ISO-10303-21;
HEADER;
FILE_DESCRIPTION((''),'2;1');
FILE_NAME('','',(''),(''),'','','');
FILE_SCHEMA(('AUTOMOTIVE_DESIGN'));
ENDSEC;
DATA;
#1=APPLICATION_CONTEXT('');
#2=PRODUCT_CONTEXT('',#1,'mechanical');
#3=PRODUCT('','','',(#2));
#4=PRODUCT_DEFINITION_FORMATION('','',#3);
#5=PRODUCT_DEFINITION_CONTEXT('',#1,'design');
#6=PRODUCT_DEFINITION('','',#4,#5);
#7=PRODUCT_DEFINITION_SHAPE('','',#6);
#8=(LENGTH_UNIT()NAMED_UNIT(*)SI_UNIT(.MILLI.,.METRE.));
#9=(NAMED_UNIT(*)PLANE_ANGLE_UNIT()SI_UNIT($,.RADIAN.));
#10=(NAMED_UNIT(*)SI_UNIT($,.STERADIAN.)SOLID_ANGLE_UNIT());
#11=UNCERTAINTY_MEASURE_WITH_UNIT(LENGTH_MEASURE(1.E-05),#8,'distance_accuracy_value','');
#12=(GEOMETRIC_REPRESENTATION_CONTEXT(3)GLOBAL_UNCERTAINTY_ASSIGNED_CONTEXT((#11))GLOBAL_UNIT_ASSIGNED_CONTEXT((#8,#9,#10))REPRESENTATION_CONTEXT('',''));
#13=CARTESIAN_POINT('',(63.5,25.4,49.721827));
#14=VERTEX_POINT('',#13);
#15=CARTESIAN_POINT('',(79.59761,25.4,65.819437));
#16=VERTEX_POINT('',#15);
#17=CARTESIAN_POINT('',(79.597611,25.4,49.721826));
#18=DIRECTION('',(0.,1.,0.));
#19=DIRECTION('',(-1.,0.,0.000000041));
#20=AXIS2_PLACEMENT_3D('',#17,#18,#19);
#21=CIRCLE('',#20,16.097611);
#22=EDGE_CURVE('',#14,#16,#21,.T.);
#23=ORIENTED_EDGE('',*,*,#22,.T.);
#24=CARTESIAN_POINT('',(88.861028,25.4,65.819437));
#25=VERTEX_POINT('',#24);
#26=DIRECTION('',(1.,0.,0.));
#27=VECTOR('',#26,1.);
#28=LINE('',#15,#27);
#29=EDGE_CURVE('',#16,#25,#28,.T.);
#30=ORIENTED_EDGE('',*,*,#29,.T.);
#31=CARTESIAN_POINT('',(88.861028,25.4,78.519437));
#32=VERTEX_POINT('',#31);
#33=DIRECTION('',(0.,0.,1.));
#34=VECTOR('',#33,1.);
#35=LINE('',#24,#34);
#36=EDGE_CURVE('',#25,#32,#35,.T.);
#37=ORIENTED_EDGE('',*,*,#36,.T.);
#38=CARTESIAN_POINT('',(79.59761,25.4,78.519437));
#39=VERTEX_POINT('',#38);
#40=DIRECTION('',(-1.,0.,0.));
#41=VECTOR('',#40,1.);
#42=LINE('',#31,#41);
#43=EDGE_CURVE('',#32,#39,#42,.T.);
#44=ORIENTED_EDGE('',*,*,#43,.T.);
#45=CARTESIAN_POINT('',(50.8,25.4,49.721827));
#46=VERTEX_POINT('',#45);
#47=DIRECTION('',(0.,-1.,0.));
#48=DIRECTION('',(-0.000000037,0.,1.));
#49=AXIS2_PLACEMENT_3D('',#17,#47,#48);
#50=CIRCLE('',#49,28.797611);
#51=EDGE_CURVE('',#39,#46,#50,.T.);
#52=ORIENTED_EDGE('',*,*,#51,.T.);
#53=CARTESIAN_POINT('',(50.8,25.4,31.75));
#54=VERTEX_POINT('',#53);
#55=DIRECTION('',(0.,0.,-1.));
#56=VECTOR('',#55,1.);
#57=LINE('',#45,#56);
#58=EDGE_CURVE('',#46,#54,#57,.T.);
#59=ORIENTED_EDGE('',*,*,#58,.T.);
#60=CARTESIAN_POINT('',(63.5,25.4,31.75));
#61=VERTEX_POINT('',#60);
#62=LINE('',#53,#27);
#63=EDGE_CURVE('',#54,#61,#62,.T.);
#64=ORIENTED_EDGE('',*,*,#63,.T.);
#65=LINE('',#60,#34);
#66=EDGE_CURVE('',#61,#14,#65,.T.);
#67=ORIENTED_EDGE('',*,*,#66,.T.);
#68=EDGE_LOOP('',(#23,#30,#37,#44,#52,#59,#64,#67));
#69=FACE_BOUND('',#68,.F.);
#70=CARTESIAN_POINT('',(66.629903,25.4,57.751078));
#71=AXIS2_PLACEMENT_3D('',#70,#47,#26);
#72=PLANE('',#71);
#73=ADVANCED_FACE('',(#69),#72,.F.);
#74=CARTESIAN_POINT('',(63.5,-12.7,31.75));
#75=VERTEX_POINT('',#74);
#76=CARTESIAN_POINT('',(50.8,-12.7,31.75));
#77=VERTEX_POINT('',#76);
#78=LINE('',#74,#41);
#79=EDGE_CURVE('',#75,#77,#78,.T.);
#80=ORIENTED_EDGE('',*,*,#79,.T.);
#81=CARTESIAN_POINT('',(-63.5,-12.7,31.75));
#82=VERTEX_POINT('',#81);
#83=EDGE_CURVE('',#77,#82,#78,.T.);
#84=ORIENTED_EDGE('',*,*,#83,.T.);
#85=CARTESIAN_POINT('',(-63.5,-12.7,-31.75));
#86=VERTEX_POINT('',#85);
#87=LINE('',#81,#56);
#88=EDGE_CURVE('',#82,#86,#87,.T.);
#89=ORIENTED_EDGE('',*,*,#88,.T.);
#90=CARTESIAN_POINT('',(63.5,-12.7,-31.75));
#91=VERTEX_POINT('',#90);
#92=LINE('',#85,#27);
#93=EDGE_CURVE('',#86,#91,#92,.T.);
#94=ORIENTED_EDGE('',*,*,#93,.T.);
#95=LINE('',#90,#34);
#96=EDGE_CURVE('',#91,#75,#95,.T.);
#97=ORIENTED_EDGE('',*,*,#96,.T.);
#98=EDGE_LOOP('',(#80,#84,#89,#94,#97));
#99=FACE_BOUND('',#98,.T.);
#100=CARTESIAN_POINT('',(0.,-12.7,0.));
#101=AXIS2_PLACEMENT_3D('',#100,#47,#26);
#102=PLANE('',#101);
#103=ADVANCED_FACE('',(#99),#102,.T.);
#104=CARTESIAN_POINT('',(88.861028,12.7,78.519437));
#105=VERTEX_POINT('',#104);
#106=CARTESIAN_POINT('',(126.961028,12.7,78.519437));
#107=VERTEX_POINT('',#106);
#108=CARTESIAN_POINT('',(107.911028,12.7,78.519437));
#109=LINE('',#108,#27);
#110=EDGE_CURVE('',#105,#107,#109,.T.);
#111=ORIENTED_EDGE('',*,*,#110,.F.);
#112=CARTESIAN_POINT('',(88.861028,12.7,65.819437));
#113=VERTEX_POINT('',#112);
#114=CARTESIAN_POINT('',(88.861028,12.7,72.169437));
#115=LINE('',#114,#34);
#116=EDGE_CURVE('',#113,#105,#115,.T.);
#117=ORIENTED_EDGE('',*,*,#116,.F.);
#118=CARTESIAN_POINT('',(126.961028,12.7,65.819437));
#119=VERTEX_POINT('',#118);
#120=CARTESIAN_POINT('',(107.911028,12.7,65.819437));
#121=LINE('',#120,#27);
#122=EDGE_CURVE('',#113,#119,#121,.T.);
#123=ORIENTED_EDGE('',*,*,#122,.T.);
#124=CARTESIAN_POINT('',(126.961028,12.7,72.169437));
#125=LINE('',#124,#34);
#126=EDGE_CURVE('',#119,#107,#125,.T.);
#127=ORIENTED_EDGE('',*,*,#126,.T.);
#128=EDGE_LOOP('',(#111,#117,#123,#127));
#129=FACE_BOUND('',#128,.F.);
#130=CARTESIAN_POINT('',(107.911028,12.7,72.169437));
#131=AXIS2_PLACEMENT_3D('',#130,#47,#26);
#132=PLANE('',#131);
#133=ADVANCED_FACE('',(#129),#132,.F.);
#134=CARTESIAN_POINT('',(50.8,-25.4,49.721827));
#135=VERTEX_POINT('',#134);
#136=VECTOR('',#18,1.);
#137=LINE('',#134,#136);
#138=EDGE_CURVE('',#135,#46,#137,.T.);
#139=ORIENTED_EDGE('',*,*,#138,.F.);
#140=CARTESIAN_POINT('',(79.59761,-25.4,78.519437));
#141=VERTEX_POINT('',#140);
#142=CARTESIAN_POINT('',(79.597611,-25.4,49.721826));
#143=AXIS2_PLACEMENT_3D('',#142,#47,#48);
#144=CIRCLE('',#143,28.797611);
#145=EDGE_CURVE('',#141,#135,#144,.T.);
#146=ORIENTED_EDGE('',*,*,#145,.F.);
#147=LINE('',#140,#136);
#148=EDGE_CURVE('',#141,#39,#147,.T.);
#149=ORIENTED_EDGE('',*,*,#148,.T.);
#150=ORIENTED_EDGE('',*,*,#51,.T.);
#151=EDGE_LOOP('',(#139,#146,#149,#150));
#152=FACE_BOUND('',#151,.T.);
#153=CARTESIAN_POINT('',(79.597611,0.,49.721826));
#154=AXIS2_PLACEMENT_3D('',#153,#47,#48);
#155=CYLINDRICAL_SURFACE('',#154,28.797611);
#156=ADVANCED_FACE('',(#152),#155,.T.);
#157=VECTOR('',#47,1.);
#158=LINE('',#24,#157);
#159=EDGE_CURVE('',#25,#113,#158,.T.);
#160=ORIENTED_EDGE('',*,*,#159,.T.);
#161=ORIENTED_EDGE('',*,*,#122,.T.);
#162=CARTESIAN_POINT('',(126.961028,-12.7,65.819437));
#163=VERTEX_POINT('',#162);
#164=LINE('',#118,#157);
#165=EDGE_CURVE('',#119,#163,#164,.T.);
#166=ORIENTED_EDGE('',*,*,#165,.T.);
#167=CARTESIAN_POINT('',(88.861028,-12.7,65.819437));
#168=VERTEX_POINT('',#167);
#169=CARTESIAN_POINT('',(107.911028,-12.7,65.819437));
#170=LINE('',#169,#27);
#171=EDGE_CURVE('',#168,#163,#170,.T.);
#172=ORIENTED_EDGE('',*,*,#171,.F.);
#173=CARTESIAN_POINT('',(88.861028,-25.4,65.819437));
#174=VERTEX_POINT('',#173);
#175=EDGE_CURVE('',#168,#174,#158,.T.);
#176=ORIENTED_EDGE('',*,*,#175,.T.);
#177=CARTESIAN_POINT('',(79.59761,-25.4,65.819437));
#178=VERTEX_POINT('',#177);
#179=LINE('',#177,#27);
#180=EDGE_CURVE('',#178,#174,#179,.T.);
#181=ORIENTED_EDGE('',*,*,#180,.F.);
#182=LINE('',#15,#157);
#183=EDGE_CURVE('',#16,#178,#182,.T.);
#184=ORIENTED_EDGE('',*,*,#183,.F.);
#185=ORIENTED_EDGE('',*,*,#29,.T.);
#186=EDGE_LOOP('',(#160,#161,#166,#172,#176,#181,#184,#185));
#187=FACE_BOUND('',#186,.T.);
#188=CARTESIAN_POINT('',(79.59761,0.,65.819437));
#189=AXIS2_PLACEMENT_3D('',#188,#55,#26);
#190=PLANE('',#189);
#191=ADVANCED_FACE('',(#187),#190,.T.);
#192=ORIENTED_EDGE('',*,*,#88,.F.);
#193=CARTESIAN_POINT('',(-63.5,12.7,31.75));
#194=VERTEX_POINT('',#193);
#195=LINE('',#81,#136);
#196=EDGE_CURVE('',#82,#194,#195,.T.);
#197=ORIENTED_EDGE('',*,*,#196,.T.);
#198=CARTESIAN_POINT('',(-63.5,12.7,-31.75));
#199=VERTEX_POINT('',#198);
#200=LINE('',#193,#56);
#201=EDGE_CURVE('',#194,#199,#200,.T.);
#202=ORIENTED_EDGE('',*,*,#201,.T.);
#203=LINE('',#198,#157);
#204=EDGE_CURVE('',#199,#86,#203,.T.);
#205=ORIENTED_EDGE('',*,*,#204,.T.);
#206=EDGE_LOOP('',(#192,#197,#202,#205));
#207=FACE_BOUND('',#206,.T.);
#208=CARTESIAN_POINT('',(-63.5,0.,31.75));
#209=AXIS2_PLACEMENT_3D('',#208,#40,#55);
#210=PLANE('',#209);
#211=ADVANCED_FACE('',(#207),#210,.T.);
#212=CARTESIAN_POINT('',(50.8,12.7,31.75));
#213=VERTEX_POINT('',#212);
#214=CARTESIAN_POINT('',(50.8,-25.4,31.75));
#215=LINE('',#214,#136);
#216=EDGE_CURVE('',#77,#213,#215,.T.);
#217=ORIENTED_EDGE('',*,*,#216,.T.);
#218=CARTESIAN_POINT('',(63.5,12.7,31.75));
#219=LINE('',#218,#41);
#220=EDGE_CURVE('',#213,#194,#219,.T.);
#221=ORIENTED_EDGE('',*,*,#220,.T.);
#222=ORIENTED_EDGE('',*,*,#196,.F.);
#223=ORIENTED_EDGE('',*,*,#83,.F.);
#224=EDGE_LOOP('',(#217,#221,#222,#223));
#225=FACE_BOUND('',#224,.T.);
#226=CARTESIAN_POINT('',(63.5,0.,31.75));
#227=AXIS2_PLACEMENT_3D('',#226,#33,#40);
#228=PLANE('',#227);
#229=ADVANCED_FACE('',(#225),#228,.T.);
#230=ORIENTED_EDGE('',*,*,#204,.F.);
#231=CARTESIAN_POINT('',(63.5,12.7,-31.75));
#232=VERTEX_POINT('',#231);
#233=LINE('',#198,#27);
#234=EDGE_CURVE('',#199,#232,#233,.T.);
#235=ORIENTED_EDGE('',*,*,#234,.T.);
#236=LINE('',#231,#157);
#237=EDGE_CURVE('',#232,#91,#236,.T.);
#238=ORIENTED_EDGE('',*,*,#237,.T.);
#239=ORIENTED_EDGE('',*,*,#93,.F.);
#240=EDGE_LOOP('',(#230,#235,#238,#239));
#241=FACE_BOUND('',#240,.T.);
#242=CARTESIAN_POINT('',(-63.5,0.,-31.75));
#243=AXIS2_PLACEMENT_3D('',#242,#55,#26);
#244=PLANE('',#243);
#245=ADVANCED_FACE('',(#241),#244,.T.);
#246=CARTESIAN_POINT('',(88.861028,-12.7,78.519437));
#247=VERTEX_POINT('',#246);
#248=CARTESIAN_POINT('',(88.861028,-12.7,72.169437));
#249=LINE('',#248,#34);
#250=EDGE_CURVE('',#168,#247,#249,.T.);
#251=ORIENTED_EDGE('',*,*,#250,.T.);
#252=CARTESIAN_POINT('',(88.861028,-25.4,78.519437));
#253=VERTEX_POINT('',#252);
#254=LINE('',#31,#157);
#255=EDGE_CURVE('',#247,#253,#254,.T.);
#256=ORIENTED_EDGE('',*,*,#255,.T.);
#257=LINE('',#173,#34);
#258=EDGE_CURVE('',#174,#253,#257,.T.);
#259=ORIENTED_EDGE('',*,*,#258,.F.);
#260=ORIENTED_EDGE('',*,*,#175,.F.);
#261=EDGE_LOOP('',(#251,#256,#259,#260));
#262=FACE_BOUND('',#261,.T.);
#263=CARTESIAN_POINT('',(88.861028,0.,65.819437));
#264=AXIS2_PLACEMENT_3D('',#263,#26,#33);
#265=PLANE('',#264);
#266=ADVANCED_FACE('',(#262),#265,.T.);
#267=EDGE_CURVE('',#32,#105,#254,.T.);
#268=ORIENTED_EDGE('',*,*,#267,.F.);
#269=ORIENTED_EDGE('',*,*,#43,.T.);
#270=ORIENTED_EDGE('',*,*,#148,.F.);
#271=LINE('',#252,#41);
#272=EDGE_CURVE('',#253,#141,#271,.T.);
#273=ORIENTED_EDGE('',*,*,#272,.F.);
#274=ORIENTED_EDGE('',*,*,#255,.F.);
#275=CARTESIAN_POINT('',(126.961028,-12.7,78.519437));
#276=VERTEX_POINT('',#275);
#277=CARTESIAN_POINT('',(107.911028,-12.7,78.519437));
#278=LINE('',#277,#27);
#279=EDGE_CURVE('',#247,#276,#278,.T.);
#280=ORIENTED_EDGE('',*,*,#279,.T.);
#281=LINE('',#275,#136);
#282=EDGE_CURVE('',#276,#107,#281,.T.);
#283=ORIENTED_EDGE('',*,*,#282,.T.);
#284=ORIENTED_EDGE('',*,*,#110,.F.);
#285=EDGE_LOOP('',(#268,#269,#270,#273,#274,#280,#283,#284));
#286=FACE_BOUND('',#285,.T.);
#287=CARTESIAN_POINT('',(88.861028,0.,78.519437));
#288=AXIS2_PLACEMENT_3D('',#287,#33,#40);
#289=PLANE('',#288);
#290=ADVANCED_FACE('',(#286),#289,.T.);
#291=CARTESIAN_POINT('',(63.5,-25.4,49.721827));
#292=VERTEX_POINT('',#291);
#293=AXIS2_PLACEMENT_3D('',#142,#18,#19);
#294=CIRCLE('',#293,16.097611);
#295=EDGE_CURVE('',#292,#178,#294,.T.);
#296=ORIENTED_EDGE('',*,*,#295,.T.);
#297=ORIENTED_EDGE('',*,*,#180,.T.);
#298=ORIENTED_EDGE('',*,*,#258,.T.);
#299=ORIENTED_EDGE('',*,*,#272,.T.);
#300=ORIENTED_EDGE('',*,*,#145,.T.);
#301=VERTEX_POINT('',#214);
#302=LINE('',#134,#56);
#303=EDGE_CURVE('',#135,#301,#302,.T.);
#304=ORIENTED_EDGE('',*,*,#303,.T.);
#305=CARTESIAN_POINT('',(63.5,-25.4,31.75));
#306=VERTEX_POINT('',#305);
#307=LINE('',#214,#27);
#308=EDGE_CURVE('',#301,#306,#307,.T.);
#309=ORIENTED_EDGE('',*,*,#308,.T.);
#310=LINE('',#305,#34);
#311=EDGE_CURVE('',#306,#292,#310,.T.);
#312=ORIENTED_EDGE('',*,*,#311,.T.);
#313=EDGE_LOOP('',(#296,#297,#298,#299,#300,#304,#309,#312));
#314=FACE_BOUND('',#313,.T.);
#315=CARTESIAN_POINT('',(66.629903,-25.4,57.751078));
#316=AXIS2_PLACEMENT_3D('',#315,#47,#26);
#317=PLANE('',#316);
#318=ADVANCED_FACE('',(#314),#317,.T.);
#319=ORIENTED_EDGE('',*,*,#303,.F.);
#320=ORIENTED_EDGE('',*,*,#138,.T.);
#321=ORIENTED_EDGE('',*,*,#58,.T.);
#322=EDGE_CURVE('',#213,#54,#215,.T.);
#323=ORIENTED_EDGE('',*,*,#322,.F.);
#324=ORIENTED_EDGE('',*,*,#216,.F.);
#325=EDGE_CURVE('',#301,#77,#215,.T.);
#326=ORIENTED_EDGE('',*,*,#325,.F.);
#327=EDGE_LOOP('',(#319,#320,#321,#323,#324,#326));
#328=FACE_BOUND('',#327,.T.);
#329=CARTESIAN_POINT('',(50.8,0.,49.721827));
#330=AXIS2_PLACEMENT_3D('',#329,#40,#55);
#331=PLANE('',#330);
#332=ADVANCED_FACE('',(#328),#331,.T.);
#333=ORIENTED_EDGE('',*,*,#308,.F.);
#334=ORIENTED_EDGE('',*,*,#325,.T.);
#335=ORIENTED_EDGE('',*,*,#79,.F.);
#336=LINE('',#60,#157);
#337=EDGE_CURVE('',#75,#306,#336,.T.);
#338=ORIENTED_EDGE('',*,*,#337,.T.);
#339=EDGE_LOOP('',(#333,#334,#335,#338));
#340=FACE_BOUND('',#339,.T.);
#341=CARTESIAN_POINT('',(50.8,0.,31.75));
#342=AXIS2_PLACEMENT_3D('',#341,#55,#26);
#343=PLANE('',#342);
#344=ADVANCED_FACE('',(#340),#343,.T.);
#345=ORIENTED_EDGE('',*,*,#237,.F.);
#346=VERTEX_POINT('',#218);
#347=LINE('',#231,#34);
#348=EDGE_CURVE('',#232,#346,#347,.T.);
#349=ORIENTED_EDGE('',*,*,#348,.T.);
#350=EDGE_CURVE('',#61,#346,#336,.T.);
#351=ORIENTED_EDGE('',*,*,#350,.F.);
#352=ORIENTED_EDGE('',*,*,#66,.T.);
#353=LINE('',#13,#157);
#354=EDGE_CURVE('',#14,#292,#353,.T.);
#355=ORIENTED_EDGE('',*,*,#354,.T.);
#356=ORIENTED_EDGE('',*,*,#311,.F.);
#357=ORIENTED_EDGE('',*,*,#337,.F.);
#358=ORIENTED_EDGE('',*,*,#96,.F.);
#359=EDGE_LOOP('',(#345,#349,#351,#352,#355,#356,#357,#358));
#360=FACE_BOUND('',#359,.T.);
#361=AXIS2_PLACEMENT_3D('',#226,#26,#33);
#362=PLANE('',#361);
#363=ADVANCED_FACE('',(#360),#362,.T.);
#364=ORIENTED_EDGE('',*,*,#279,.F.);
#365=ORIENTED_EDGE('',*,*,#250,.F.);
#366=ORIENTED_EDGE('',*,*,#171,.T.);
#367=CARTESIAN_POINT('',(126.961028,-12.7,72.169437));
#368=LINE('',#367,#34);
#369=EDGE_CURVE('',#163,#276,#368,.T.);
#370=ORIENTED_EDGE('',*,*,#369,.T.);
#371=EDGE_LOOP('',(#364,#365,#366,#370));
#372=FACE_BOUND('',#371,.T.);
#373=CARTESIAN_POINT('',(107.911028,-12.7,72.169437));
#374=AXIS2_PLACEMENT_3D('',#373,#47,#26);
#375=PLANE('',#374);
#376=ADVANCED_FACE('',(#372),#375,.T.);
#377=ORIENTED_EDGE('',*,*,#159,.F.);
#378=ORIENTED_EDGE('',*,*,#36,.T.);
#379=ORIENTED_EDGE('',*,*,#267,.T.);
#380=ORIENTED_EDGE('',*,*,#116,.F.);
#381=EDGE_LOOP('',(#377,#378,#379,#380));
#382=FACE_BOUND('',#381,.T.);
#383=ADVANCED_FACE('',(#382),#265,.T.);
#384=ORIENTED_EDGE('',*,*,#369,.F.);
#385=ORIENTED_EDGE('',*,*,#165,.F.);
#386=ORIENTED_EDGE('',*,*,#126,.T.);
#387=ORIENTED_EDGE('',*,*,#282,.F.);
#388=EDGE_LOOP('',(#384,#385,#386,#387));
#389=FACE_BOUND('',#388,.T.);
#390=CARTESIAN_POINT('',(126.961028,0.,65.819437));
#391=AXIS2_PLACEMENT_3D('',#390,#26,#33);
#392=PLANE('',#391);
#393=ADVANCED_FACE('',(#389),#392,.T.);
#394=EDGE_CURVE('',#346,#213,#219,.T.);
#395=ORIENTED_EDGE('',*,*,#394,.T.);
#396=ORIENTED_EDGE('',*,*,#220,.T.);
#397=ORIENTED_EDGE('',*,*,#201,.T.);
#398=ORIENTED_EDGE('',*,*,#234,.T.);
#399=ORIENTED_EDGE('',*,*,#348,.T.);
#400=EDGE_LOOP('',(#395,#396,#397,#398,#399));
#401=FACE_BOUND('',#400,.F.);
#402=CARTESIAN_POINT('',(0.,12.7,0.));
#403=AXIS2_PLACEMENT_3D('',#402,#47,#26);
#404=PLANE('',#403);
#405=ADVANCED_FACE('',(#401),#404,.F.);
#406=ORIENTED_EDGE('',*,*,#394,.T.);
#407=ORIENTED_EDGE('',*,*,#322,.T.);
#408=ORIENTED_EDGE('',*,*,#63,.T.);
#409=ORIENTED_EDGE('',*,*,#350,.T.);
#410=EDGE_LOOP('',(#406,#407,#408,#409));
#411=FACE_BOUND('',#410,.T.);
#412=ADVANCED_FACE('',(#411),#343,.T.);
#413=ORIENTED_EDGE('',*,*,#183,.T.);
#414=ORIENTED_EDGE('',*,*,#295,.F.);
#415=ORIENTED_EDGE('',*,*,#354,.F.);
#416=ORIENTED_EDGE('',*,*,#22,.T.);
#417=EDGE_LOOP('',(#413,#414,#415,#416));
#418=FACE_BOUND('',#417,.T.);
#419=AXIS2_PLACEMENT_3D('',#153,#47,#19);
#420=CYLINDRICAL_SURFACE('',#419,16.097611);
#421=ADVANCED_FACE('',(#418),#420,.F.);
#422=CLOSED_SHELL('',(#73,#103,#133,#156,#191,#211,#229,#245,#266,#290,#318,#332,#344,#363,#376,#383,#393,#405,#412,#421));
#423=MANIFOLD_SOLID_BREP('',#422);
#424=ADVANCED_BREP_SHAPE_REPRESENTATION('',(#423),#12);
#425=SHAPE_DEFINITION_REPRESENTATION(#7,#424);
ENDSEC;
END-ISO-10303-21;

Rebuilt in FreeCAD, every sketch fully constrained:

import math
import FreeCAD as App
import Part
import Sketcher

V = App.Vector
Q = App.Units.Quantity


def add_polygon(sketch, points):
    """Adds a closed chain of lines whose ends are joined by coincident constraints."""
    first, n = sketch.GeometryCount, len(points)
    for a, b in zip(points, points[1:] + points[:1]):
        sketch.addGeometry(Part.LineSegment(App.Vector(*a, 0), App.Vector(*b, 0)), False)
    for i in range(n):
        sketch.addConstraint(Sketcher.Constraint("Coincident", first + i, 2, first + (i + 1) % n, 1))

doc = App.newDocument("Part")
body = doc.addObject("PartDesign::Body", "Body")

sketch1 = body.newObject("Sketcher::SketchObject", "Sketch")
sketch1.AttachmentSupport = (doc.getObject("XZ_Plane"), [""])
sketch1.MapMode = "FlatFace"
add_polygon(sketch1, [(-64, 32), (-64, -32), (64, -32), (64, 32)])
sketch1.addConstraint([
    Sketcher.Constraint("Vertical", 0),
    Sketcher.Constraint("Horizontal", 1),
    Sketcher.Constraint("Vertical", 2),
    Sketcher.Constraint("Horizontal", 3),
    Sketcher.Constraint("Symmetric", 0, 2, 2, 2, -1, 1),
    Sketcher.Constraint("DistanceX", 1, 1, 1, 2, Q("5 in")),
    Sketcher.Constraint("DistanceY", 0, 2, 0, 1, Q("2.5 in")),
])
pad1 = body.newObject("PartDesign::Pad", "Pad")
pad1.Profile = sketch1
pad1.Length = Q("1 in")
pad1.Midplane = True

sketch2 = body.newObject("Sketcher::SketchObject", "Sketch001")
sketch2.AttachmentSupport = (doc.getObject("XZ_Plane"), [""])
sketch2.MapMode = "FlatFace"
sketch2.addGeometry([
    Part.LineSegment(V(51, 32, 0), V(64, 32, 0)),
    Part.LineSegment(V(64, 32, 0), V(64, 50, 0)),
    Part.ArcOfCircle(Part.Circle(V(80, 50, 0), V(0, 0, 1), 16), math.radians(90), math.radians(180)),
    Part.LineSegment(V(80, 66, 0), V(89, 66, 0)),
    Part.LineSegment(V(89, 66, 0), V(89, 79, 0)),
    Part.LineSegment(V(89, 79, 0), V(80, 79, 0)),
    Part.ArcOfCircle(Part.Circle(V(80, 50, 0), V(0, 0, 1), 29), math.radians(90), math.radians(180)),
    Part.LineSegment(V(51, 50, 0), V(51, 32, 0)),
], False)
sketch2.addConstraint([
    Sketcher.Constraint("Coincident", 0, 2, 1, 1),
    Sketcher.Constraint("Tangent", 1, 2, 2, 2),
    Sketcher.Constraint("Tangent", 2, 1, 3, 1),
    Sketcher.Constraint("Coincident", 3, 2, 4, 1),
    Sketcher.Constraint("Coincident", 4, 2, 5, 1),
    Sketcher.Constraint("Tangent", 5, 2, 6, 1),
    Sketcher.Constraint("Tangent", 6, 2, 7, 1),
    Sketcher.Constraint("Coincident", 7, 2, 0, 1),
    Sketcher.Constraint("Horizontal", 0),
    Sketcher.Constraint("Vertical", 1),
    Sketcher.Constraint("Horizontal", 3),
    Sketcher.Constraint("Vertical", 4),
    Sketcher.Constraint("Horizontal", 5),
    Sketcher.Constraint("Vertical", 7),
    Sketcher.Constraint("Coincident", 6, 3, 2, 3),
    Sketcher.Constraint("DistanceX", 0, 1, 0, 2, Q("0.5 in")),
    Sketcher.Constraint("DistanceX", -1, 1, 6, 2, Q("2 in")),
    Sketcher.Constraint("DistanceY", -1, 1, 0, 2, Q("1.25 in")),
    Sketcher.Constraint("Radius", 2, 16.097611),
    Sketcher.Constraint("DistanceX", 3, 1, 3, 2, 9.263418),
    Sketcher.Constraint("DistanceY", 1, 1, 1, 2, 17.971827),
])
pad2 = body.newObject("PartDesign::Pad", "Pad001")
pad2.Profile = sketch2
pad2.Length = Q("2 in")
pad2.Midplane = True

sketch3 = body.newObject("Sketcher::SketchObject", "Sketch002")
sketch3.AttachmentSupport = (doc.getObject("XZ_Plane"), [""])
sketch3.MapMode = "FlatFace"
add_polygon(sketch3, [(89, 79), (89, 66), (127, 66), (127, 79)])
sketch3.addConstraint([
    Sketcher.Constraint("Vertical", 0),
    Sketcher.Constraint("Horizontal", 1),
    Sketcher.Constraint("Vertical", 2),
    Sketcher.Constraint("Horizontal", 3),
    Sketcher.Constraint("DistanceX", 1, 1, 1, 2, Q("1.5 in")),
    Sketcher.Constraint("DistanceY", 0, 2, 0, 1, Q("0.5 in")),
    Sketcher.Constraint("DistanceX", -1, 1, 0, 2, 88.861028),
    Sketcher.Constraint("DistanceY", -1, 1, 0, 2, 65.819437),
])
pad3 = body.newObject("PartDesign::Pad", "Pad002")
pad3.Profile = sketch3
pad3.Length = Q("1 in")
pad3.Midplane = True

doc.recompute()
